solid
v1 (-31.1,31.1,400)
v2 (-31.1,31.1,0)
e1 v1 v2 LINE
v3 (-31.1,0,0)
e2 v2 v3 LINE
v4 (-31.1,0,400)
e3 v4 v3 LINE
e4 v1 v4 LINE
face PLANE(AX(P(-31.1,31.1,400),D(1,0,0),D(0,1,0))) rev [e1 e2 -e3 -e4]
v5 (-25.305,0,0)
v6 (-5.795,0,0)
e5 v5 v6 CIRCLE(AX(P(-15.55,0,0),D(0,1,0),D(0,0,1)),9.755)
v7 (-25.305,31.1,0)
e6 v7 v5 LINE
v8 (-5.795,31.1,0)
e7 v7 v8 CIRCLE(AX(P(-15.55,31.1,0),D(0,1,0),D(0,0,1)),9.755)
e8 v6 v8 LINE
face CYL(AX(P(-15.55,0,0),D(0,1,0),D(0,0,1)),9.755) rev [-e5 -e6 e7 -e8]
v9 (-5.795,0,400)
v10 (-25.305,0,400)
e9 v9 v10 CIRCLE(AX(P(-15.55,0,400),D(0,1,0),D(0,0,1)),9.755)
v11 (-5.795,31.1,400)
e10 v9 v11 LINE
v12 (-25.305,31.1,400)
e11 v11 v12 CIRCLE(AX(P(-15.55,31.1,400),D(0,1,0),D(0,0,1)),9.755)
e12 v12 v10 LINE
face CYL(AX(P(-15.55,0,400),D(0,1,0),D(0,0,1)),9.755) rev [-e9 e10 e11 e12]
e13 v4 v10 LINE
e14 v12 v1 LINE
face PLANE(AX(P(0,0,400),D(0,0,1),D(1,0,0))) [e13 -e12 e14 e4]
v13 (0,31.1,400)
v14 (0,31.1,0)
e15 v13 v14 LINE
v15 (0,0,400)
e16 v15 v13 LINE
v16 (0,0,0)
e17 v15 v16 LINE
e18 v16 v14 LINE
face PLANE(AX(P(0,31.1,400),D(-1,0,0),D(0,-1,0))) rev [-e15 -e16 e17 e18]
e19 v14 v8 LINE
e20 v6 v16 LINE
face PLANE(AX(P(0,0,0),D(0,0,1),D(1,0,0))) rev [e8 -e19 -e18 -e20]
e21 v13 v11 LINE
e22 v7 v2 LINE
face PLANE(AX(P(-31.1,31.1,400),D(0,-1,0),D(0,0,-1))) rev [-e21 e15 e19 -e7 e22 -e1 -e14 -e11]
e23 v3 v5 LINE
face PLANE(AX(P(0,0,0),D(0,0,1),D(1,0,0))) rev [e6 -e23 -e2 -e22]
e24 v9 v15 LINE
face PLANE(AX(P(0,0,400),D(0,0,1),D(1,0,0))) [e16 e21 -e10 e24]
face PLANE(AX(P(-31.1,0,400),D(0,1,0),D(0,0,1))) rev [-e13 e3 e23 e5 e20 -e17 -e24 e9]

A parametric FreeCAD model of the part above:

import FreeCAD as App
import Part
import Sketcher
from FreeCAD import Vector
Q = App.Units.Quantity


def add_polygon(sketch, points):
    """Adds a closed chain of lines whose ends are joined by coincident constraints."""
    first, n = sketch.GeometryCount, len(points)
    for a, b in zip(points, points[1:] + points[:1]):
        sketch.addGeometry(Part.LineSegment(App.Vector(*a, 0), App.Vector(*b, 0)), False)
    for i in range(n):
        sketch.addConstraint(Sketcher.Constraint("Coincident", first + i, 2, first + (i + 1) % n, 1))

doc = App.newDocument("Part")
body = doc.addObject("PartDesign::Body", "Body")

# Sketch on XY plane
sketch1 = body.newObject("Sketcher::SketchObject", "Sketch")
sketch1.AttachmentSupport = (doc.getObject("XY_Plane"), [""])
sketch1.MapMode = "FlatFace"
add_polygon(sketch1, [(-31, 31), (-31, 0), (0, 0), (0, 31)])  # lines 0-3
sketch1.addConstraint([
    Sketcher.Constraint("Vertical", 0),
    Sketcher.Constraint("Horizontal", 1),
    Sketcher.Constraint("Vertical", 2),
    Sketcher.Constraint("Horizontal", 3),
    Sketcher.Constraint("Coincident", 1, 2, -1, 1),
    Sketcher.Constraint("Equal", 3, 0),
    Sketcher.Constraint("DistanceX", 1, 1, 1, 2, Q("31.1 mm")),
])
pad1 = body.newObject("PartDesign::Pad", "Pad")
pad1.Profile = sketch1
pad1.Length = 400

# Sketch on XZ plane
sketch2 = body.newObject("Sketcher::SketchObject", "Sketch001")
sketch2.AttachmentSupport = (doc.getObject("XZ_Plane"), [""])
sketch2.MapMode = "FlatFace"
sketch2.AttachmentOffset = App.Placement(Vector(0, 0, -31.1), App.Rotation())
sketch2.addGeometry([
    Part.Circle(Vector(-16, 400, 0), Vector(0, 0, 1), 10),
    Part.Circle(Vector(-16, 0, 0), Vector(0, 0, 1), 10),
], False)
sketch2.addConstraint([
    Sketcher.Constraint("Equal", 0, 1),
    Sketcher.Constraint("PointOnObject", 1, 3, -1),
    Sketcher.Constraint("Vertical", 0, 3, 1, 3),
    Sketcher.Constraint("Diameter", 0, Q("19.51 mm")),
    Sketcher.Constraint("DistanceY", -1, 1, 0, 3, Q("400 mm")),
    Sketcher.Constraint("DistanceX", 0, 3, -1, 1, Q("15.55 mm")),
])
pocket1 = body.newObject("PartDesign::Pocket", "Pocket")
pocket1.Profile = sketch2
pocket1.Length = 31.1
pocket1.Reversed = True

doc.recompute()
